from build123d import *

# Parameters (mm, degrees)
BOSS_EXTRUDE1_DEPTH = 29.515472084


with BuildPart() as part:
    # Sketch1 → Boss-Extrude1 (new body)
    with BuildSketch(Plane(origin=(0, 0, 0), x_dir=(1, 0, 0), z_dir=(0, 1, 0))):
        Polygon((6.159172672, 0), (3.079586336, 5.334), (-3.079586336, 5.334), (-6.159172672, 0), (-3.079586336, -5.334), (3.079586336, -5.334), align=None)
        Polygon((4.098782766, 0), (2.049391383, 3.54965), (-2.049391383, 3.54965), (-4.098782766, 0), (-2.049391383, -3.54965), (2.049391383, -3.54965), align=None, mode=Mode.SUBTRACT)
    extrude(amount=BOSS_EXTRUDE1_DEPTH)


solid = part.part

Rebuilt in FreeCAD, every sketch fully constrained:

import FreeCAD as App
import Part
import Sketcher
Q = App.Units.Quantity


def add_polygon(sketch, points):
    """Adds a closed chain of lines whose ends are joined by coincident constraints."""
    first, n = sketch.GeometryCount, len(points)
    for a, b in zip(points, points[1:] + points[:1]):
        sketch.addGeometry(Part.LineSegment(App.Vector(*a, 0), App.Vector(*b, 0)), False)
    for i in range(n):
        sketch.addConstraint(Sketcher.Constraint("Coincident", first + i, 2, first + (i + 1) % n, 1))

doc = App.newDocument("Part")
body = doc.addObject("PartDesign::Body", "Body")

# Sketch on XZ plane
sketch1 = doc.addObject("Sketcher::SketchObject", "Sketch")
body.addObject(sketch1)
sketch1.AttachmentSupport = (doc.XZ_Plane, [""])
sketch1.MapMode = "FlatFace"
add_polygon(sketch1, [(6.2, 0), (3.1, -5.3), (-3.1, -5.3), (-6.2, 0), (-3.1, 5.3), (3.1, 5.3)])  # lines 0-5
add_polygon(sketch1, [(2, -3.5), (4.1, 0), (2, 3.5), (-2, 3.5), (-4.1, 0), (-2, -3.5)])  # lines 6-11
sketch1.addConstraint([
    Sketcher.Constraint("Horizontal", 1),
    Sketcher.Constraint("Horizontal", 4),
    Sketcher.Constraint("Horizontal", 8),
    Sketcher.Constraint("Horizontal", 11),
    Sketcher.Constraint("Symmetric", 0, 2, 3, 2, -1, 1),
    Sketcher.Constraint("Symmetric", 2, 2, 5, 2, -1, 1),
    Sketcher.Constraint("Symmetric", 6, 2, 9, 2, -1, 1),
    Sketcher.Constraint("Symmetric", 7, 2, 10, 2, -1, 1),
    Sketcher.Constraint("PointOnObject", 2, 2, -1),
    Sketcher.Constraint("PointOnObject", 6, 2, -1),
    Sketcher.Constraint("Parallel", 2, 5),
    Sketcher.Constraint("Parallel", 3, 6),
    Sketcher.Constraint("Parallel", 5, 7),
    Sketcher.Constraint("Parallel", 6, 9),
    Sketcher.Constraint("Vertical", 1, 2, 3, 2),
    Sketcher.Constraint("Angle", 0, Q("-120 deg")),
    Sketcher.Constraint("DistanceY", 0, 2, -1, 1, Q("5.334 mm")),
    Sketcher.Constraint("DistanceX", 1, 2, 1, 1, Q("6.159173 mm")),
    Sketcher.Constraint("DistanceX", 8, 2, 8, 1, Q("4.098783 mm")),
    Sketcher.Constraint("DistanceY", -1, 1, 7, 2, Q("3.54965 mm")),
])
pad1 = doc.addObject("PartDesign::Pad", "Pad")
body.addObject(pad1)
pad1.Profile = sketch1
pad1.Length = 29.515472
pad1.Reversed = True

doc.recompute()
